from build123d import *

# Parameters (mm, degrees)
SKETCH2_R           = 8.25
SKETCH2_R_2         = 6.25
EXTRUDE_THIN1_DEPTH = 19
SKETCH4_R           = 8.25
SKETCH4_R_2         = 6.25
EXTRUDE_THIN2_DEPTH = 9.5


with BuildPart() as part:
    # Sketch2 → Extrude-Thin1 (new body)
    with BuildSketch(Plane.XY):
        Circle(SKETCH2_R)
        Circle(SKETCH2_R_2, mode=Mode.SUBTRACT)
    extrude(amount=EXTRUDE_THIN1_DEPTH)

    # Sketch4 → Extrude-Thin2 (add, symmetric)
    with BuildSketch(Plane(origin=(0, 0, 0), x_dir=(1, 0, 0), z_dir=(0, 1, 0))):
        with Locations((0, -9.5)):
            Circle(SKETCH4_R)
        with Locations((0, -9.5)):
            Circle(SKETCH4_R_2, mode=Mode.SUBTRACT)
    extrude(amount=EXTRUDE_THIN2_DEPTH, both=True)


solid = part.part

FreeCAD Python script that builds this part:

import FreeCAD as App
import Part
import Sketcher
from FreeCAD import Vector

doc = App.newDocument("Part")
body = doc.addObject("PartDesign::Body", "Body")

# Sketch on XY plane
sketch1 = body.newObject("Sketcher::SketchObject", "Sketch")
sketch1.AttachmentSupport = (doc.getObject("XY_Plane"), [""])
sketch1.MapMode = "FlatFace"
sketch1.addGeometry(Part.Circle(Vector(0, 0, 0), Vector(0, 0, 1), 8.25), False)
sketch1.addGeometry(Part.Circle(Vector(0, 0, 0), Vector(0, 0, 1), 6.25), False)
sketch1.addConstraint(Sketcher.Constraint("Coincident", 0, 3, -1, 1))
sketch1.addConstraint(Sketcher.Constraint("Coincident", 1, 3, -1, 1))
sketch1.addConstraint(Sketcher.Constraint("Diameter", 0, 16.5))
sketch1.addConstraint(Sketcher.Constraint("Diameter", 1, 12.5))
pad1 = body.newObject("PartDesign::Pad", "Pad")
pad1.Profile = sketch1
pad1.Length = 19

# Sketch on XZ plane
sketch2 = body.newObject("Sketcher::SketchObject", "Sketch001")
sketch2.AttachmentSupport = (doc.getObject("XZ_Plane"), [""])
sketch2.MapMode = "FlatFace"
sketch2.addGeometry(Part.Circle(Vector(0, 9.5, 0), Vector(0, 0, 1), 8.25), False)
sketch2.addGeometry(Part.Circle(Vector(0, 9.5, 0), Vector(0, 0, 1), 6.25), False)
sketch2.addConstraint(Sketcher.Constraint("Coincident", 1, 3, 0, 3))
sketch2.addConstraint(Sketcher.Constraint("PointOnObject", 0, 3, -2))
sketch2.addConstraint(Sketcher.Constraint("Diameter", 0, 16.5))
sketch2.addConstraint(Sketcher.Constraint("Diameter", 1, 12.5))
sketch2.addConstraint(Sketcher.Constraint("DistanceY", -1, 1, 0, 3, 9.5))
pad2 = body.newObject("PartDesign::Pad", "Pad001")
pad2.Profile = sketch2
pad2.Length = 19
pad2.Midplane = True

doc.recompute()
